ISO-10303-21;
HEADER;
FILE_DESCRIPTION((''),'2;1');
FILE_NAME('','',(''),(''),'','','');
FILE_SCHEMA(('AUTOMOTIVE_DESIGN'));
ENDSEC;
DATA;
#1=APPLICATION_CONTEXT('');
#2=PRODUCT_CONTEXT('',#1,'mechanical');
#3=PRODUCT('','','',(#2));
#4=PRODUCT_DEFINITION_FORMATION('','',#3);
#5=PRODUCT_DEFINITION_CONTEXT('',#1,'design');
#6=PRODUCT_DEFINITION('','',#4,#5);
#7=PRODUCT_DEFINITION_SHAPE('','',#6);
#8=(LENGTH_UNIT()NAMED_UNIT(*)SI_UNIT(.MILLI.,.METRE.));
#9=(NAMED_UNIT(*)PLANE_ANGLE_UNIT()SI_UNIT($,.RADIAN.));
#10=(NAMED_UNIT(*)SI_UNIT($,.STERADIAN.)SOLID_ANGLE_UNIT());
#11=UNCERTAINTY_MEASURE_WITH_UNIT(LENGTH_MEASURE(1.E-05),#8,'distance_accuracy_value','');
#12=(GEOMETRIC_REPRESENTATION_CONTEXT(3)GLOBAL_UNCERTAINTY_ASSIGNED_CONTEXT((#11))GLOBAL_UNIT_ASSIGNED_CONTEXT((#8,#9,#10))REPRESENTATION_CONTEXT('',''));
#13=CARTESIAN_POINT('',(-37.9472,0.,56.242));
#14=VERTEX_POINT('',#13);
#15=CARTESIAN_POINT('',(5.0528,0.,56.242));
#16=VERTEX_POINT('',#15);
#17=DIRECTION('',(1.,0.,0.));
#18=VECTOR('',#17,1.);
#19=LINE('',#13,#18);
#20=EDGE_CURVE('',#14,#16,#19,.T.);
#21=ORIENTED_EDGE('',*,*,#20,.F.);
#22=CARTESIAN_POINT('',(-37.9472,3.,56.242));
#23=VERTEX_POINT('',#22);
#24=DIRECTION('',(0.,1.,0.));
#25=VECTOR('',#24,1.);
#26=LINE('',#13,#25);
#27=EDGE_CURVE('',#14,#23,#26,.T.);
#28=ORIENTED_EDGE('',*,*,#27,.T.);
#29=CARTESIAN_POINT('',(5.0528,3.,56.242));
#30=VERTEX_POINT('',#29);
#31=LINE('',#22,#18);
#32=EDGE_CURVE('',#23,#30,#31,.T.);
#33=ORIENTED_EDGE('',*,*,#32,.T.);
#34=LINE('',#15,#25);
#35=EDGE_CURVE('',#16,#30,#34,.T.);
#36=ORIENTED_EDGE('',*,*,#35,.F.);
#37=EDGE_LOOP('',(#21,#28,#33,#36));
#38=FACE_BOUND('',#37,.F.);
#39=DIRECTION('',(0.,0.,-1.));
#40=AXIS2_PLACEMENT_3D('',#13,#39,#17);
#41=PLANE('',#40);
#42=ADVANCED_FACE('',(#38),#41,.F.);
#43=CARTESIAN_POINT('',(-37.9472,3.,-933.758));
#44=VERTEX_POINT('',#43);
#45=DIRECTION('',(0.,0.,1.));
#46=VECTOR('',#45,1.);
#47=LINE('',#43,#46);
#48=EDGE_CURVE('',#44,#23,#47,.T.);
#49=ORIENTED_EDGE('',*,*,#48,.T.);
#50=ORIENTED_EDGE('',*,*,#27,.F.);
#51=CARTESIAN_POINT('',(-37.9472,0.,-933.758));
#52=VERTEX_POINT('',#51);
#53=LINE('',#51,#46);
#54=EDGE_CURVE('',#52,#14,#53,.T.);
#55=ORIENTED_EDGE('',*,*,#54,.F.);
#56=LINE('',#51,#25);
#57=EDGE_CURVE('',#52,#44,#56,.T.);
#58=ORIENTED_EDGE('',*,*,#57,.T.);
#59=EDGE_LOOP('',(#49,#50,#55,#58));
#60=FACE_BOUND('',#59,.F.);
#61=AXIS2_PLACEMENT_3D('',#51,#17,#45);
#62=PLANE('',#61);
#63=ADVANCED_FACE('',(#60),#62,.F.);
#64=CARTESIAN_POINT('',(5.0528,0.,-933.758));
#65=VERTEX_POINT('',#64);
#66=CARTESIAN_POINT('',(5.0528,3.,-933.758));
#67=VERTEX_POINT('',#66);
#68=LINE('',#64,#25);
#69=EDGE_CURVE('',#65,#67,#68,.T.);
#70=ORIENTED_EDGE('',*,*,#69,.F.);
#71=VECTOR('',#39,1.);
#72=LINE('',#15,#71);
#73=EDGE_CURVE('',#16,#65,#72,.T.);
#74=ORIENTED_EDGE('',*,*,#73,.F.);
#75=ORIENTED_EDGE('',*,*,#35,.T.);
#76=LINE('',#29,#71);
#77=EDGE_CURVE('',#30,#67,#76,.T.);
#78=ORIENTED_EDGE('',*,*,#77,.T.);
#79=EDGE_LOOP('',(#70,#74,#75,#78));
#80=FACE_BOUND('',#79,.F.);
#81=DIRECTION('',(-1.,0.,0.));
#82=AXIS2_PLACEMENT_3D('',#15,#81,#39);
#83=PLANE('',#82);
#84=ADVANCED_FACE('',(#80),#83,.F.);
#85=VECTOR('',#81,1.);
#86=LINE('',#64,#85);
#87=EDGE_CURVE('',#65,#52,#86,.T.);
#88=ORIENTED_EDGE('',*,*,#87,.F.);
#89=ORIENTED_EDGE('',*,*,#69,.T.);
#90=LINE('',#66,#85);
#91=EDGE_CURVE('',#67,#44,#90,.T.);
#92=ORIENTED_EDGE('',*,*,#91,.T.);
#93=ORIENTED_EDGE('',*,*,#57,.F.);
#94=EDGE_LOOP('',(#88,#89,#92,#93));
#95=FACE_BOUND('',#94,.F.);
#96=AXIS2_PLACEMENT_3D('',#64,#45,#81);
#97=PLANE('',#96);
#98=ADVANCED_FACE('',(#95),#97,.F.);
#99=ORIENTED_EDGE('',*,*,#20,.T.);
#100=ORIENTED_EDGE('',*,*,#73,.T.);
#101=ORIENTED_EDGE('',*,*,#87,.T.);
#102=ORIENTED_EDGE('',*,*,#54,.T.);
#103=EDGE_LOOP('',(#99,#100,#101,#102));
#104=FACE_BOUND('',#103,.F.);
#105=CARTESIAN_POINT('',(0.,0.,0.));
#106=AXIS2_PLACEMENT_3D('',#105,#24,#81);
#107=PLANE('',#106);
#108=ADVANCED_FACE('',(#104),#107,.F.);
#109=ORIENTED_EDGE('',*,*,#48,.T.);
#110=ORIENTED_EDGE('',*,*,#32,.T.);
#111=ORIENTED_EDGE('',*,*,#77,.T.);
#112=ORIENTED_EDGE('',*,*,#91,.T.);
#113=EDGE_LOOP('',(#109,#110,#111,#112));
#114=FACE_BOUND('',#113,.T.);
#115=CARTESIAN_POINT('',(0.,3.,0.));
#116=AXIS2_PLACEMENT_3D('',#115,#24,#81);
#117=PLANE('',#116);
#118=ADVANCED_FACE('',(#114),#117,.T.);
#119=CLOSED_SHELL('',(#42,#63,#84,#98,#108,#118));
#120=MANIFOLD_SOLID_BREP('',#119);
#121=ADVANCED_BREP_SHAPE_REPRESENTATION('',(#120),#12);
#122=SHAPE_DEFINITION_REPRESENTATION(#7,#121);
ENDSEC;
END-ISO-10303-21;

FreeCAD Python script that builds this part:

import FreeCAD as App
import Part
import Sketcher
from FreeCAD import Vector
Q = App.Units.Quantity


def add_polygon(sketch, points):
    """Adds a closed chain of lines whose ends are joined by coincident constraints."""
    first, n = sketch.GeometryCount, len(points)
    for a, b in zip(points, points[1:] + points[:1]):
        sketch.addGeometry(Part.LineSegment(App.Vector(*a, 0), App.Vector(*b, 0)), False)
    for i in range(n):
        sketch.addConstraint(Sketcher.Constraint("Coincident", first + i, 2, first + (i + 1) % n, 1))

doc = App.newDocument("Part")
body = doc.addObject("PartDesign::Body", "Body")

# Sketch on XZ plane
sketch1 = body.newObject("Sketcher::SketchObject", "Sketch")
sketch1.AttachmentSupport = (doc.getObject("XZ_Plane"), [""])
sketch1.MapMode = "FlatFace"
add_polygon(sketch1, [(-38, -934), (-38, 56), (5, 56), (5, -934)])  # lines 0-3
sketch1.addConstraint(Sketcher.Constraint("Vertical", 0))
sketch1.addConstraint(Sketcher.Constraint("Horizontal", 1))
sketch1.addConstraint(Sketcher.Constraint("Vertical", 2))
sketch1.addConstraint(Sketcher.Constraint("Horizontal", 3))
sketch1.addConstraint(Sketcher.Constraint("DistanceX", 1, 1, 1, 2, Q("43 mm")))
sketch1.addConstraint(Sketcher.Constraint("DistanceY", 0, 1, 0, 2, Q("990 mm")))
sketch1.addConstraint(Sketcher.Constraint("DistanceY", -1, 1, 0, 2, Q("56.242 mm")))
sketch1.addConstraint(Sketcher.Constraint("DistanceX", 0, 2, -1, 1, Q("37.9472 mm")))
pad1 = body.newObject("PartDesign::Pad", "Pad")
pad1.Profile = sketch1
pad1.Length = 3
pad1.Reversed = True

doc.recompute()
